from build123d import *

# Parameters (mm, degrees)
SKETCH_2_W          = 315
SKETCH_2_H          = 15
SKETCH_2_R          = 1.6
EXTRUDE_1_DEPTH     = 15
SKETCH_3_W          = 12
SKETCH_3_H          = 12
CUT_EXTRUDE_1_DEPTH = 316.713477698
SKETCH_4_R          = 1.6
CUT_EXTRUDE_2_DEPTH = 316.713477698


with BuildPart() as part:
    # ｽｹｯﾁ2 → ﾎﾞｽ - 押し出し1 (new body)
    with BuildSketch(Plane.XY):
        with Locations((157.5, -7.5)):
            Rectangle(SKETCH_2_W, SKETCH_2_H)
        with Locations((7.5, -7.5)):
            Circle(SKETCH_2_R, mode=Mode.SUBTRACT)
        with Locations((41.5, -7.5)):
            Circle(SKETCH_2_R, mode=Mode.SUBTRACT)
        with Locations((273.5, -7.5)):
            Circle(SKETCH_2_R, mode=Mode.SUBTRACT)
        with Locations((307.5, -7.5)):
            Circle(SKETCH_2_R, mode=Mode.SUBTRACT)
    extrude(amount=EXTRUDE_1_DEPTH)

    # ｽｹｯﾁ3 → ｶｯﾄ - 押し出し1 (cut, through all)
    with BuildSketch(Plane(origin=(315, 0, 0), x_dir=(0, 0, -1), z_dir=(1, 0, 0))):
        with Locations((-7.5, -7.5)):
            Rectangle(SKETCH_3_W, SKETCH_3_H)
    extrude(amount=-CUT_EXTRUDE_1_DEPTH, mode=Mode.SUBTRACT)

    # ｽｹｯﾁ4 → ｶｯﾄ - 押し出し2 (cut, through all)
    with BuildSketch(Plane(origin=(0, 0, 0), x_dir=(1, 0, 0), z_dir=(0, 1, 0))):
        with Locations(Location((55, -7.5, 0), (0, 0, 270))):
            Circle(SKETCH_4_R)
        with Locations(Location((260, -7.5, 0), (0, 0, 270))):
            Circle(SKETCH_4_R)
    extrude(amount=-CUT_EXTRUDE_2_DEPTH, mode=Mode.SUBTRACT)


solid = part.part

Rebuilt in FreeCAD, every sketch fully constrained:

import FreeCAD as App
import Part
import Sketcher

V = App.Vector

doc = App.newDocument("Part")
params = doc.addObject("Spreadsheet::Sheet", "Params")
for row, (alias, value) in enumerate([
    ("sketch1_diameter", "3.2 mm"),
    ("sketch1_width", "315 mm"),
    ("sketch1_height", "15 mm"),
    ("pad1_length", "15 mm"),
    ("sketch2_width", "12 mm"),
    ("sketch3_diameter", "3.2 mm"),
], start=1):
    params.set(f"A{row}", alias)
    params.set(f"B{row}", "=" + value)
    params.setAlias(f"B{row}", alias)

body = doc.addObject("PartDesign::Body", "Body")

sketch1 = doc.addObject("Sketcher::SketchObject", "Sketch")
body.addObject(sketch1)
sketch1.AttachmentSupport = (doc.XY_Plane, [""])
sketch1.MapMode = "FlatFace"
sketch1.addGeometry(Part.LineSegment(V(0, 0, 0), V(0, -15, 0)), False)
sketch1.addGeometry(Part.LineSegment(V(0, -15, 0), V(315, -15, 0)), False)
sketch1.addGeometry(Part.LineSegment(V(315, -15, 0), V(315, 0, 0)), False)
sketch1.addGeometry(Part.LineSegment(V(315, 0, 0), V(0, 0, 0)), False)
sketch1.addGeometry(Part.Circle(V(7.5, -7.5, 0), V(0, 0, 1), 1.6), False)
sketch1.addGeometry(Part.Circle(V(41.5, -7.5, 0), V(0, 0, 1), 1.6), False)
sketch1.addGeometry(Part.Circle(V(273.5, -7.5, 0), V(0, 0, 1), 1.6), False)
sketch1.addGeometry(Part.Circle(V(307.5, -7.5, 0), V(0, 0, 1), 1.6), False)
sketch1.addConstraint(Sketcher.Constraint("Coincident", 0, 2, 1, 1))
sketch1.addConstraint(Sketcher.Constraint("Coincident", 1, 2, 2, 1))
sketch1.addConstraint(Sketcher.Constraint("Coincident", 2, 2, 3, 1))
sketch1.addConstraint(Sketcher.Constraint("Coincident", 3, 2, 0, 1))
sketch1.addConstraint(Sketcher.Constraint("Vertical", 0))
sketch1.addConstraint(Sketcher.Constraint("Horizontal", 1))
sketch1.addConstraint(Sketcher.Constraint("Vertical", 2))
sketch1.addConstraint(Sketcher.Constraint("Horizontal", 3))
sketch1.addConstraint(Sketcher.Constraint("Coincident", 3, 2, -1, 1))
sketch1.addConstraint(Sketcher.Constraint("Equal", 4, 5))
sketch1.addConstraint(Sketcher.Constraint("Equal", 5, 6))
sketch1.addConstraint(Sketcher.Constraint("Equal", 6, 7))
sketch1.addConstraint(Sketcher.Constraint("Horizontal", 4, 3, 5, 3))
sketch1.addConstraint(Sketcher.Constraint("Horizontal", 5, 3, 6, 3))
sketch1.addConstraint(Sketcher.Constraint("Horizontal", 6, 3, 7, 3))
sketch1.addConstraint(Sketcher.Constraint("Diameter", 4, 3.2))
sketch1.addConstraint(Sketcher.Constraint("DistanceX", 1, 1, 1, 2, 315.0))
sketch1.addConstraint(Sketcher.Constraint("DistanceY", 0, 2, 0, 1, 15.0))
sketch1.addConstraint(Sketcher.Constraint("DistanceX", 4, 3, 5, 3, 34.0))
sketch1.addConstraint(Sketcher.Constraint("DistanceX", 5, 3, 6, 3, 232.0))
sketch1.addConstraint(Sketcher.Constraint("DistanceX", 6, 3, 7, 3, 34.0))
sketch1.addConstraint(Sketcher.Constraint("DistanceX", -1, 1, 4, 3, 7.5))
sketch1.addConstraint(Sketcher.Constraint("DistanceY", 4, 3, -1, 1, 7.5))
sketch1.setExpression("Constraints[15]", "Params.sketch1_diameter")
sketch1.setExpression("Constraints[16]", "Params.sketch1_width")
sketch1.setExpression("Constraints[17]", "Params.sketch1_height")
pad1 = doc.addObject("PartDesign::Pad", "Pad")
body.addObject(pad1)
pad1.Profile = sketch1
pad1.setExpression("Length", "Params.pad1_length")

sketch2 = doc.addObject("Sketcher::SketchObject", "Sketch001")
body.addObject(sketch2)
sketch2.AttachmentSupport = (doc.YZ_Plane, [""])
sketch2.MapMode = "FlatFace"
sketch2.AttachmentOffset = App.Placement(V(0, 0, 315), App.Rotation())
sketch2.addGeometry(Part.LineSegment(V(-2, 14, 0), V(-14, 14, 0)), False)
sketch2.addGeometry(Part.LineSegment(V(-14, 14, 0), V(-14, 2, 0)), False)
sketch2.addGeometry(Part.LineSegment(V(-14, 2, 0), V(-2, 2, 0)), False)
sketch2.addGeometry(Part.LineSegment(V(-2, 2, 0), V(-2, 14, 0)), False)
sketch2.addConstraint(Sketcher.Constraint("Coincident", 0, 2, 1, 1))
sketch2.addConstraint(Sketcher.Constraint("Coincident", 1, 2, 2, 1))
sketch2.addConstraint(Sketcher.Constraint("Coincident", 2, 2, 3, 1))
sketch2.addConstraint(Sketcher.Constraint("Coincident", 3, 2, 0, 1))
sketch2.addConstraint(Sketcher.Constraint("Horizontal", 0))
sketch2.addConstraint(Sketcher.Constraint("Vertical", 1))
sketch2.addConstraint(Sketcher.Constraint("Horizontal", 2))
sketch2.addConstraint(Sketcher.Constraint("Vertical", 3))
sketch2.addConstraint(Sketcher.Constraint("Equal", 2, 1))
sketch2.addConstraint(Sketcher.Constraint("DistanceX", 0, 2, 0, 1, 12.0))
sketch2.addConstraint(Sketcher.Constraint("DistanceX", 0, 2, -1, 1, 13.5))
sketch2.addConstraint(Sketcher.Constraint("DistanceY", -1, 1, 0, 2, 13.5))
sketch2.setExpression("Constraints[9]", "Params.sketch2_width")
pocket1 = doc.addObject("PartDesign::Pocket", "Pocket")
body.addObject(pocket1)
pocket1.Profile = sketch2
pocket1.Type = "ThroughAll"

sketch3 = doc.addObject("Sketcher::SketchObject", "Sketch002")
body.addObject(sketch3)
sketch3.AttachmentSupport = (doc.XZ_Plane, [""])
sketch3.MapMode = "FlatFace"
sketch3.addGeometry(Part.Circle(V(55, 7.5, 0), V(0, 0, 1), 1.6), False)
sketch3.addGeometry(Part.Circle(V(260, 7.5, 0), V(0, 0, 1), 1.6), False)
sketch3.addConstraint(Sketcher.Constraint("Equal", 0, 1))
sketch3.addConstraint(Sketcher.Constraint("Horizontal", 0, 3, 1, 3))
sketch3.addConstraint(Sketcher.Constraint("Diameter", 0, 3.2))
sketch3.addConstraint(Sketcher.Constraint("DistanceX", -1, 1, 0, 3, 55.0))
sketch3.addConstraint(Sketcher.Constraint("DistanceX", -1, 1, 1, 3, 260.0))
sketch3.addConstraint(Sketcher.Constraint("DistanceY", -1, 1, 0, 3, 7.5))
sketch3.setExpression("Constraints[2]", "Params.sketch3_diameter")
pocket2 = doc.addObject("PartDesign::Pocket", "Pocket001")
body.addObject(pocket2)
pocket2.Profile = sketch3
pocket2.Type = "ThroughAll"
pocket2.Reversed = True

doc.recompute()
